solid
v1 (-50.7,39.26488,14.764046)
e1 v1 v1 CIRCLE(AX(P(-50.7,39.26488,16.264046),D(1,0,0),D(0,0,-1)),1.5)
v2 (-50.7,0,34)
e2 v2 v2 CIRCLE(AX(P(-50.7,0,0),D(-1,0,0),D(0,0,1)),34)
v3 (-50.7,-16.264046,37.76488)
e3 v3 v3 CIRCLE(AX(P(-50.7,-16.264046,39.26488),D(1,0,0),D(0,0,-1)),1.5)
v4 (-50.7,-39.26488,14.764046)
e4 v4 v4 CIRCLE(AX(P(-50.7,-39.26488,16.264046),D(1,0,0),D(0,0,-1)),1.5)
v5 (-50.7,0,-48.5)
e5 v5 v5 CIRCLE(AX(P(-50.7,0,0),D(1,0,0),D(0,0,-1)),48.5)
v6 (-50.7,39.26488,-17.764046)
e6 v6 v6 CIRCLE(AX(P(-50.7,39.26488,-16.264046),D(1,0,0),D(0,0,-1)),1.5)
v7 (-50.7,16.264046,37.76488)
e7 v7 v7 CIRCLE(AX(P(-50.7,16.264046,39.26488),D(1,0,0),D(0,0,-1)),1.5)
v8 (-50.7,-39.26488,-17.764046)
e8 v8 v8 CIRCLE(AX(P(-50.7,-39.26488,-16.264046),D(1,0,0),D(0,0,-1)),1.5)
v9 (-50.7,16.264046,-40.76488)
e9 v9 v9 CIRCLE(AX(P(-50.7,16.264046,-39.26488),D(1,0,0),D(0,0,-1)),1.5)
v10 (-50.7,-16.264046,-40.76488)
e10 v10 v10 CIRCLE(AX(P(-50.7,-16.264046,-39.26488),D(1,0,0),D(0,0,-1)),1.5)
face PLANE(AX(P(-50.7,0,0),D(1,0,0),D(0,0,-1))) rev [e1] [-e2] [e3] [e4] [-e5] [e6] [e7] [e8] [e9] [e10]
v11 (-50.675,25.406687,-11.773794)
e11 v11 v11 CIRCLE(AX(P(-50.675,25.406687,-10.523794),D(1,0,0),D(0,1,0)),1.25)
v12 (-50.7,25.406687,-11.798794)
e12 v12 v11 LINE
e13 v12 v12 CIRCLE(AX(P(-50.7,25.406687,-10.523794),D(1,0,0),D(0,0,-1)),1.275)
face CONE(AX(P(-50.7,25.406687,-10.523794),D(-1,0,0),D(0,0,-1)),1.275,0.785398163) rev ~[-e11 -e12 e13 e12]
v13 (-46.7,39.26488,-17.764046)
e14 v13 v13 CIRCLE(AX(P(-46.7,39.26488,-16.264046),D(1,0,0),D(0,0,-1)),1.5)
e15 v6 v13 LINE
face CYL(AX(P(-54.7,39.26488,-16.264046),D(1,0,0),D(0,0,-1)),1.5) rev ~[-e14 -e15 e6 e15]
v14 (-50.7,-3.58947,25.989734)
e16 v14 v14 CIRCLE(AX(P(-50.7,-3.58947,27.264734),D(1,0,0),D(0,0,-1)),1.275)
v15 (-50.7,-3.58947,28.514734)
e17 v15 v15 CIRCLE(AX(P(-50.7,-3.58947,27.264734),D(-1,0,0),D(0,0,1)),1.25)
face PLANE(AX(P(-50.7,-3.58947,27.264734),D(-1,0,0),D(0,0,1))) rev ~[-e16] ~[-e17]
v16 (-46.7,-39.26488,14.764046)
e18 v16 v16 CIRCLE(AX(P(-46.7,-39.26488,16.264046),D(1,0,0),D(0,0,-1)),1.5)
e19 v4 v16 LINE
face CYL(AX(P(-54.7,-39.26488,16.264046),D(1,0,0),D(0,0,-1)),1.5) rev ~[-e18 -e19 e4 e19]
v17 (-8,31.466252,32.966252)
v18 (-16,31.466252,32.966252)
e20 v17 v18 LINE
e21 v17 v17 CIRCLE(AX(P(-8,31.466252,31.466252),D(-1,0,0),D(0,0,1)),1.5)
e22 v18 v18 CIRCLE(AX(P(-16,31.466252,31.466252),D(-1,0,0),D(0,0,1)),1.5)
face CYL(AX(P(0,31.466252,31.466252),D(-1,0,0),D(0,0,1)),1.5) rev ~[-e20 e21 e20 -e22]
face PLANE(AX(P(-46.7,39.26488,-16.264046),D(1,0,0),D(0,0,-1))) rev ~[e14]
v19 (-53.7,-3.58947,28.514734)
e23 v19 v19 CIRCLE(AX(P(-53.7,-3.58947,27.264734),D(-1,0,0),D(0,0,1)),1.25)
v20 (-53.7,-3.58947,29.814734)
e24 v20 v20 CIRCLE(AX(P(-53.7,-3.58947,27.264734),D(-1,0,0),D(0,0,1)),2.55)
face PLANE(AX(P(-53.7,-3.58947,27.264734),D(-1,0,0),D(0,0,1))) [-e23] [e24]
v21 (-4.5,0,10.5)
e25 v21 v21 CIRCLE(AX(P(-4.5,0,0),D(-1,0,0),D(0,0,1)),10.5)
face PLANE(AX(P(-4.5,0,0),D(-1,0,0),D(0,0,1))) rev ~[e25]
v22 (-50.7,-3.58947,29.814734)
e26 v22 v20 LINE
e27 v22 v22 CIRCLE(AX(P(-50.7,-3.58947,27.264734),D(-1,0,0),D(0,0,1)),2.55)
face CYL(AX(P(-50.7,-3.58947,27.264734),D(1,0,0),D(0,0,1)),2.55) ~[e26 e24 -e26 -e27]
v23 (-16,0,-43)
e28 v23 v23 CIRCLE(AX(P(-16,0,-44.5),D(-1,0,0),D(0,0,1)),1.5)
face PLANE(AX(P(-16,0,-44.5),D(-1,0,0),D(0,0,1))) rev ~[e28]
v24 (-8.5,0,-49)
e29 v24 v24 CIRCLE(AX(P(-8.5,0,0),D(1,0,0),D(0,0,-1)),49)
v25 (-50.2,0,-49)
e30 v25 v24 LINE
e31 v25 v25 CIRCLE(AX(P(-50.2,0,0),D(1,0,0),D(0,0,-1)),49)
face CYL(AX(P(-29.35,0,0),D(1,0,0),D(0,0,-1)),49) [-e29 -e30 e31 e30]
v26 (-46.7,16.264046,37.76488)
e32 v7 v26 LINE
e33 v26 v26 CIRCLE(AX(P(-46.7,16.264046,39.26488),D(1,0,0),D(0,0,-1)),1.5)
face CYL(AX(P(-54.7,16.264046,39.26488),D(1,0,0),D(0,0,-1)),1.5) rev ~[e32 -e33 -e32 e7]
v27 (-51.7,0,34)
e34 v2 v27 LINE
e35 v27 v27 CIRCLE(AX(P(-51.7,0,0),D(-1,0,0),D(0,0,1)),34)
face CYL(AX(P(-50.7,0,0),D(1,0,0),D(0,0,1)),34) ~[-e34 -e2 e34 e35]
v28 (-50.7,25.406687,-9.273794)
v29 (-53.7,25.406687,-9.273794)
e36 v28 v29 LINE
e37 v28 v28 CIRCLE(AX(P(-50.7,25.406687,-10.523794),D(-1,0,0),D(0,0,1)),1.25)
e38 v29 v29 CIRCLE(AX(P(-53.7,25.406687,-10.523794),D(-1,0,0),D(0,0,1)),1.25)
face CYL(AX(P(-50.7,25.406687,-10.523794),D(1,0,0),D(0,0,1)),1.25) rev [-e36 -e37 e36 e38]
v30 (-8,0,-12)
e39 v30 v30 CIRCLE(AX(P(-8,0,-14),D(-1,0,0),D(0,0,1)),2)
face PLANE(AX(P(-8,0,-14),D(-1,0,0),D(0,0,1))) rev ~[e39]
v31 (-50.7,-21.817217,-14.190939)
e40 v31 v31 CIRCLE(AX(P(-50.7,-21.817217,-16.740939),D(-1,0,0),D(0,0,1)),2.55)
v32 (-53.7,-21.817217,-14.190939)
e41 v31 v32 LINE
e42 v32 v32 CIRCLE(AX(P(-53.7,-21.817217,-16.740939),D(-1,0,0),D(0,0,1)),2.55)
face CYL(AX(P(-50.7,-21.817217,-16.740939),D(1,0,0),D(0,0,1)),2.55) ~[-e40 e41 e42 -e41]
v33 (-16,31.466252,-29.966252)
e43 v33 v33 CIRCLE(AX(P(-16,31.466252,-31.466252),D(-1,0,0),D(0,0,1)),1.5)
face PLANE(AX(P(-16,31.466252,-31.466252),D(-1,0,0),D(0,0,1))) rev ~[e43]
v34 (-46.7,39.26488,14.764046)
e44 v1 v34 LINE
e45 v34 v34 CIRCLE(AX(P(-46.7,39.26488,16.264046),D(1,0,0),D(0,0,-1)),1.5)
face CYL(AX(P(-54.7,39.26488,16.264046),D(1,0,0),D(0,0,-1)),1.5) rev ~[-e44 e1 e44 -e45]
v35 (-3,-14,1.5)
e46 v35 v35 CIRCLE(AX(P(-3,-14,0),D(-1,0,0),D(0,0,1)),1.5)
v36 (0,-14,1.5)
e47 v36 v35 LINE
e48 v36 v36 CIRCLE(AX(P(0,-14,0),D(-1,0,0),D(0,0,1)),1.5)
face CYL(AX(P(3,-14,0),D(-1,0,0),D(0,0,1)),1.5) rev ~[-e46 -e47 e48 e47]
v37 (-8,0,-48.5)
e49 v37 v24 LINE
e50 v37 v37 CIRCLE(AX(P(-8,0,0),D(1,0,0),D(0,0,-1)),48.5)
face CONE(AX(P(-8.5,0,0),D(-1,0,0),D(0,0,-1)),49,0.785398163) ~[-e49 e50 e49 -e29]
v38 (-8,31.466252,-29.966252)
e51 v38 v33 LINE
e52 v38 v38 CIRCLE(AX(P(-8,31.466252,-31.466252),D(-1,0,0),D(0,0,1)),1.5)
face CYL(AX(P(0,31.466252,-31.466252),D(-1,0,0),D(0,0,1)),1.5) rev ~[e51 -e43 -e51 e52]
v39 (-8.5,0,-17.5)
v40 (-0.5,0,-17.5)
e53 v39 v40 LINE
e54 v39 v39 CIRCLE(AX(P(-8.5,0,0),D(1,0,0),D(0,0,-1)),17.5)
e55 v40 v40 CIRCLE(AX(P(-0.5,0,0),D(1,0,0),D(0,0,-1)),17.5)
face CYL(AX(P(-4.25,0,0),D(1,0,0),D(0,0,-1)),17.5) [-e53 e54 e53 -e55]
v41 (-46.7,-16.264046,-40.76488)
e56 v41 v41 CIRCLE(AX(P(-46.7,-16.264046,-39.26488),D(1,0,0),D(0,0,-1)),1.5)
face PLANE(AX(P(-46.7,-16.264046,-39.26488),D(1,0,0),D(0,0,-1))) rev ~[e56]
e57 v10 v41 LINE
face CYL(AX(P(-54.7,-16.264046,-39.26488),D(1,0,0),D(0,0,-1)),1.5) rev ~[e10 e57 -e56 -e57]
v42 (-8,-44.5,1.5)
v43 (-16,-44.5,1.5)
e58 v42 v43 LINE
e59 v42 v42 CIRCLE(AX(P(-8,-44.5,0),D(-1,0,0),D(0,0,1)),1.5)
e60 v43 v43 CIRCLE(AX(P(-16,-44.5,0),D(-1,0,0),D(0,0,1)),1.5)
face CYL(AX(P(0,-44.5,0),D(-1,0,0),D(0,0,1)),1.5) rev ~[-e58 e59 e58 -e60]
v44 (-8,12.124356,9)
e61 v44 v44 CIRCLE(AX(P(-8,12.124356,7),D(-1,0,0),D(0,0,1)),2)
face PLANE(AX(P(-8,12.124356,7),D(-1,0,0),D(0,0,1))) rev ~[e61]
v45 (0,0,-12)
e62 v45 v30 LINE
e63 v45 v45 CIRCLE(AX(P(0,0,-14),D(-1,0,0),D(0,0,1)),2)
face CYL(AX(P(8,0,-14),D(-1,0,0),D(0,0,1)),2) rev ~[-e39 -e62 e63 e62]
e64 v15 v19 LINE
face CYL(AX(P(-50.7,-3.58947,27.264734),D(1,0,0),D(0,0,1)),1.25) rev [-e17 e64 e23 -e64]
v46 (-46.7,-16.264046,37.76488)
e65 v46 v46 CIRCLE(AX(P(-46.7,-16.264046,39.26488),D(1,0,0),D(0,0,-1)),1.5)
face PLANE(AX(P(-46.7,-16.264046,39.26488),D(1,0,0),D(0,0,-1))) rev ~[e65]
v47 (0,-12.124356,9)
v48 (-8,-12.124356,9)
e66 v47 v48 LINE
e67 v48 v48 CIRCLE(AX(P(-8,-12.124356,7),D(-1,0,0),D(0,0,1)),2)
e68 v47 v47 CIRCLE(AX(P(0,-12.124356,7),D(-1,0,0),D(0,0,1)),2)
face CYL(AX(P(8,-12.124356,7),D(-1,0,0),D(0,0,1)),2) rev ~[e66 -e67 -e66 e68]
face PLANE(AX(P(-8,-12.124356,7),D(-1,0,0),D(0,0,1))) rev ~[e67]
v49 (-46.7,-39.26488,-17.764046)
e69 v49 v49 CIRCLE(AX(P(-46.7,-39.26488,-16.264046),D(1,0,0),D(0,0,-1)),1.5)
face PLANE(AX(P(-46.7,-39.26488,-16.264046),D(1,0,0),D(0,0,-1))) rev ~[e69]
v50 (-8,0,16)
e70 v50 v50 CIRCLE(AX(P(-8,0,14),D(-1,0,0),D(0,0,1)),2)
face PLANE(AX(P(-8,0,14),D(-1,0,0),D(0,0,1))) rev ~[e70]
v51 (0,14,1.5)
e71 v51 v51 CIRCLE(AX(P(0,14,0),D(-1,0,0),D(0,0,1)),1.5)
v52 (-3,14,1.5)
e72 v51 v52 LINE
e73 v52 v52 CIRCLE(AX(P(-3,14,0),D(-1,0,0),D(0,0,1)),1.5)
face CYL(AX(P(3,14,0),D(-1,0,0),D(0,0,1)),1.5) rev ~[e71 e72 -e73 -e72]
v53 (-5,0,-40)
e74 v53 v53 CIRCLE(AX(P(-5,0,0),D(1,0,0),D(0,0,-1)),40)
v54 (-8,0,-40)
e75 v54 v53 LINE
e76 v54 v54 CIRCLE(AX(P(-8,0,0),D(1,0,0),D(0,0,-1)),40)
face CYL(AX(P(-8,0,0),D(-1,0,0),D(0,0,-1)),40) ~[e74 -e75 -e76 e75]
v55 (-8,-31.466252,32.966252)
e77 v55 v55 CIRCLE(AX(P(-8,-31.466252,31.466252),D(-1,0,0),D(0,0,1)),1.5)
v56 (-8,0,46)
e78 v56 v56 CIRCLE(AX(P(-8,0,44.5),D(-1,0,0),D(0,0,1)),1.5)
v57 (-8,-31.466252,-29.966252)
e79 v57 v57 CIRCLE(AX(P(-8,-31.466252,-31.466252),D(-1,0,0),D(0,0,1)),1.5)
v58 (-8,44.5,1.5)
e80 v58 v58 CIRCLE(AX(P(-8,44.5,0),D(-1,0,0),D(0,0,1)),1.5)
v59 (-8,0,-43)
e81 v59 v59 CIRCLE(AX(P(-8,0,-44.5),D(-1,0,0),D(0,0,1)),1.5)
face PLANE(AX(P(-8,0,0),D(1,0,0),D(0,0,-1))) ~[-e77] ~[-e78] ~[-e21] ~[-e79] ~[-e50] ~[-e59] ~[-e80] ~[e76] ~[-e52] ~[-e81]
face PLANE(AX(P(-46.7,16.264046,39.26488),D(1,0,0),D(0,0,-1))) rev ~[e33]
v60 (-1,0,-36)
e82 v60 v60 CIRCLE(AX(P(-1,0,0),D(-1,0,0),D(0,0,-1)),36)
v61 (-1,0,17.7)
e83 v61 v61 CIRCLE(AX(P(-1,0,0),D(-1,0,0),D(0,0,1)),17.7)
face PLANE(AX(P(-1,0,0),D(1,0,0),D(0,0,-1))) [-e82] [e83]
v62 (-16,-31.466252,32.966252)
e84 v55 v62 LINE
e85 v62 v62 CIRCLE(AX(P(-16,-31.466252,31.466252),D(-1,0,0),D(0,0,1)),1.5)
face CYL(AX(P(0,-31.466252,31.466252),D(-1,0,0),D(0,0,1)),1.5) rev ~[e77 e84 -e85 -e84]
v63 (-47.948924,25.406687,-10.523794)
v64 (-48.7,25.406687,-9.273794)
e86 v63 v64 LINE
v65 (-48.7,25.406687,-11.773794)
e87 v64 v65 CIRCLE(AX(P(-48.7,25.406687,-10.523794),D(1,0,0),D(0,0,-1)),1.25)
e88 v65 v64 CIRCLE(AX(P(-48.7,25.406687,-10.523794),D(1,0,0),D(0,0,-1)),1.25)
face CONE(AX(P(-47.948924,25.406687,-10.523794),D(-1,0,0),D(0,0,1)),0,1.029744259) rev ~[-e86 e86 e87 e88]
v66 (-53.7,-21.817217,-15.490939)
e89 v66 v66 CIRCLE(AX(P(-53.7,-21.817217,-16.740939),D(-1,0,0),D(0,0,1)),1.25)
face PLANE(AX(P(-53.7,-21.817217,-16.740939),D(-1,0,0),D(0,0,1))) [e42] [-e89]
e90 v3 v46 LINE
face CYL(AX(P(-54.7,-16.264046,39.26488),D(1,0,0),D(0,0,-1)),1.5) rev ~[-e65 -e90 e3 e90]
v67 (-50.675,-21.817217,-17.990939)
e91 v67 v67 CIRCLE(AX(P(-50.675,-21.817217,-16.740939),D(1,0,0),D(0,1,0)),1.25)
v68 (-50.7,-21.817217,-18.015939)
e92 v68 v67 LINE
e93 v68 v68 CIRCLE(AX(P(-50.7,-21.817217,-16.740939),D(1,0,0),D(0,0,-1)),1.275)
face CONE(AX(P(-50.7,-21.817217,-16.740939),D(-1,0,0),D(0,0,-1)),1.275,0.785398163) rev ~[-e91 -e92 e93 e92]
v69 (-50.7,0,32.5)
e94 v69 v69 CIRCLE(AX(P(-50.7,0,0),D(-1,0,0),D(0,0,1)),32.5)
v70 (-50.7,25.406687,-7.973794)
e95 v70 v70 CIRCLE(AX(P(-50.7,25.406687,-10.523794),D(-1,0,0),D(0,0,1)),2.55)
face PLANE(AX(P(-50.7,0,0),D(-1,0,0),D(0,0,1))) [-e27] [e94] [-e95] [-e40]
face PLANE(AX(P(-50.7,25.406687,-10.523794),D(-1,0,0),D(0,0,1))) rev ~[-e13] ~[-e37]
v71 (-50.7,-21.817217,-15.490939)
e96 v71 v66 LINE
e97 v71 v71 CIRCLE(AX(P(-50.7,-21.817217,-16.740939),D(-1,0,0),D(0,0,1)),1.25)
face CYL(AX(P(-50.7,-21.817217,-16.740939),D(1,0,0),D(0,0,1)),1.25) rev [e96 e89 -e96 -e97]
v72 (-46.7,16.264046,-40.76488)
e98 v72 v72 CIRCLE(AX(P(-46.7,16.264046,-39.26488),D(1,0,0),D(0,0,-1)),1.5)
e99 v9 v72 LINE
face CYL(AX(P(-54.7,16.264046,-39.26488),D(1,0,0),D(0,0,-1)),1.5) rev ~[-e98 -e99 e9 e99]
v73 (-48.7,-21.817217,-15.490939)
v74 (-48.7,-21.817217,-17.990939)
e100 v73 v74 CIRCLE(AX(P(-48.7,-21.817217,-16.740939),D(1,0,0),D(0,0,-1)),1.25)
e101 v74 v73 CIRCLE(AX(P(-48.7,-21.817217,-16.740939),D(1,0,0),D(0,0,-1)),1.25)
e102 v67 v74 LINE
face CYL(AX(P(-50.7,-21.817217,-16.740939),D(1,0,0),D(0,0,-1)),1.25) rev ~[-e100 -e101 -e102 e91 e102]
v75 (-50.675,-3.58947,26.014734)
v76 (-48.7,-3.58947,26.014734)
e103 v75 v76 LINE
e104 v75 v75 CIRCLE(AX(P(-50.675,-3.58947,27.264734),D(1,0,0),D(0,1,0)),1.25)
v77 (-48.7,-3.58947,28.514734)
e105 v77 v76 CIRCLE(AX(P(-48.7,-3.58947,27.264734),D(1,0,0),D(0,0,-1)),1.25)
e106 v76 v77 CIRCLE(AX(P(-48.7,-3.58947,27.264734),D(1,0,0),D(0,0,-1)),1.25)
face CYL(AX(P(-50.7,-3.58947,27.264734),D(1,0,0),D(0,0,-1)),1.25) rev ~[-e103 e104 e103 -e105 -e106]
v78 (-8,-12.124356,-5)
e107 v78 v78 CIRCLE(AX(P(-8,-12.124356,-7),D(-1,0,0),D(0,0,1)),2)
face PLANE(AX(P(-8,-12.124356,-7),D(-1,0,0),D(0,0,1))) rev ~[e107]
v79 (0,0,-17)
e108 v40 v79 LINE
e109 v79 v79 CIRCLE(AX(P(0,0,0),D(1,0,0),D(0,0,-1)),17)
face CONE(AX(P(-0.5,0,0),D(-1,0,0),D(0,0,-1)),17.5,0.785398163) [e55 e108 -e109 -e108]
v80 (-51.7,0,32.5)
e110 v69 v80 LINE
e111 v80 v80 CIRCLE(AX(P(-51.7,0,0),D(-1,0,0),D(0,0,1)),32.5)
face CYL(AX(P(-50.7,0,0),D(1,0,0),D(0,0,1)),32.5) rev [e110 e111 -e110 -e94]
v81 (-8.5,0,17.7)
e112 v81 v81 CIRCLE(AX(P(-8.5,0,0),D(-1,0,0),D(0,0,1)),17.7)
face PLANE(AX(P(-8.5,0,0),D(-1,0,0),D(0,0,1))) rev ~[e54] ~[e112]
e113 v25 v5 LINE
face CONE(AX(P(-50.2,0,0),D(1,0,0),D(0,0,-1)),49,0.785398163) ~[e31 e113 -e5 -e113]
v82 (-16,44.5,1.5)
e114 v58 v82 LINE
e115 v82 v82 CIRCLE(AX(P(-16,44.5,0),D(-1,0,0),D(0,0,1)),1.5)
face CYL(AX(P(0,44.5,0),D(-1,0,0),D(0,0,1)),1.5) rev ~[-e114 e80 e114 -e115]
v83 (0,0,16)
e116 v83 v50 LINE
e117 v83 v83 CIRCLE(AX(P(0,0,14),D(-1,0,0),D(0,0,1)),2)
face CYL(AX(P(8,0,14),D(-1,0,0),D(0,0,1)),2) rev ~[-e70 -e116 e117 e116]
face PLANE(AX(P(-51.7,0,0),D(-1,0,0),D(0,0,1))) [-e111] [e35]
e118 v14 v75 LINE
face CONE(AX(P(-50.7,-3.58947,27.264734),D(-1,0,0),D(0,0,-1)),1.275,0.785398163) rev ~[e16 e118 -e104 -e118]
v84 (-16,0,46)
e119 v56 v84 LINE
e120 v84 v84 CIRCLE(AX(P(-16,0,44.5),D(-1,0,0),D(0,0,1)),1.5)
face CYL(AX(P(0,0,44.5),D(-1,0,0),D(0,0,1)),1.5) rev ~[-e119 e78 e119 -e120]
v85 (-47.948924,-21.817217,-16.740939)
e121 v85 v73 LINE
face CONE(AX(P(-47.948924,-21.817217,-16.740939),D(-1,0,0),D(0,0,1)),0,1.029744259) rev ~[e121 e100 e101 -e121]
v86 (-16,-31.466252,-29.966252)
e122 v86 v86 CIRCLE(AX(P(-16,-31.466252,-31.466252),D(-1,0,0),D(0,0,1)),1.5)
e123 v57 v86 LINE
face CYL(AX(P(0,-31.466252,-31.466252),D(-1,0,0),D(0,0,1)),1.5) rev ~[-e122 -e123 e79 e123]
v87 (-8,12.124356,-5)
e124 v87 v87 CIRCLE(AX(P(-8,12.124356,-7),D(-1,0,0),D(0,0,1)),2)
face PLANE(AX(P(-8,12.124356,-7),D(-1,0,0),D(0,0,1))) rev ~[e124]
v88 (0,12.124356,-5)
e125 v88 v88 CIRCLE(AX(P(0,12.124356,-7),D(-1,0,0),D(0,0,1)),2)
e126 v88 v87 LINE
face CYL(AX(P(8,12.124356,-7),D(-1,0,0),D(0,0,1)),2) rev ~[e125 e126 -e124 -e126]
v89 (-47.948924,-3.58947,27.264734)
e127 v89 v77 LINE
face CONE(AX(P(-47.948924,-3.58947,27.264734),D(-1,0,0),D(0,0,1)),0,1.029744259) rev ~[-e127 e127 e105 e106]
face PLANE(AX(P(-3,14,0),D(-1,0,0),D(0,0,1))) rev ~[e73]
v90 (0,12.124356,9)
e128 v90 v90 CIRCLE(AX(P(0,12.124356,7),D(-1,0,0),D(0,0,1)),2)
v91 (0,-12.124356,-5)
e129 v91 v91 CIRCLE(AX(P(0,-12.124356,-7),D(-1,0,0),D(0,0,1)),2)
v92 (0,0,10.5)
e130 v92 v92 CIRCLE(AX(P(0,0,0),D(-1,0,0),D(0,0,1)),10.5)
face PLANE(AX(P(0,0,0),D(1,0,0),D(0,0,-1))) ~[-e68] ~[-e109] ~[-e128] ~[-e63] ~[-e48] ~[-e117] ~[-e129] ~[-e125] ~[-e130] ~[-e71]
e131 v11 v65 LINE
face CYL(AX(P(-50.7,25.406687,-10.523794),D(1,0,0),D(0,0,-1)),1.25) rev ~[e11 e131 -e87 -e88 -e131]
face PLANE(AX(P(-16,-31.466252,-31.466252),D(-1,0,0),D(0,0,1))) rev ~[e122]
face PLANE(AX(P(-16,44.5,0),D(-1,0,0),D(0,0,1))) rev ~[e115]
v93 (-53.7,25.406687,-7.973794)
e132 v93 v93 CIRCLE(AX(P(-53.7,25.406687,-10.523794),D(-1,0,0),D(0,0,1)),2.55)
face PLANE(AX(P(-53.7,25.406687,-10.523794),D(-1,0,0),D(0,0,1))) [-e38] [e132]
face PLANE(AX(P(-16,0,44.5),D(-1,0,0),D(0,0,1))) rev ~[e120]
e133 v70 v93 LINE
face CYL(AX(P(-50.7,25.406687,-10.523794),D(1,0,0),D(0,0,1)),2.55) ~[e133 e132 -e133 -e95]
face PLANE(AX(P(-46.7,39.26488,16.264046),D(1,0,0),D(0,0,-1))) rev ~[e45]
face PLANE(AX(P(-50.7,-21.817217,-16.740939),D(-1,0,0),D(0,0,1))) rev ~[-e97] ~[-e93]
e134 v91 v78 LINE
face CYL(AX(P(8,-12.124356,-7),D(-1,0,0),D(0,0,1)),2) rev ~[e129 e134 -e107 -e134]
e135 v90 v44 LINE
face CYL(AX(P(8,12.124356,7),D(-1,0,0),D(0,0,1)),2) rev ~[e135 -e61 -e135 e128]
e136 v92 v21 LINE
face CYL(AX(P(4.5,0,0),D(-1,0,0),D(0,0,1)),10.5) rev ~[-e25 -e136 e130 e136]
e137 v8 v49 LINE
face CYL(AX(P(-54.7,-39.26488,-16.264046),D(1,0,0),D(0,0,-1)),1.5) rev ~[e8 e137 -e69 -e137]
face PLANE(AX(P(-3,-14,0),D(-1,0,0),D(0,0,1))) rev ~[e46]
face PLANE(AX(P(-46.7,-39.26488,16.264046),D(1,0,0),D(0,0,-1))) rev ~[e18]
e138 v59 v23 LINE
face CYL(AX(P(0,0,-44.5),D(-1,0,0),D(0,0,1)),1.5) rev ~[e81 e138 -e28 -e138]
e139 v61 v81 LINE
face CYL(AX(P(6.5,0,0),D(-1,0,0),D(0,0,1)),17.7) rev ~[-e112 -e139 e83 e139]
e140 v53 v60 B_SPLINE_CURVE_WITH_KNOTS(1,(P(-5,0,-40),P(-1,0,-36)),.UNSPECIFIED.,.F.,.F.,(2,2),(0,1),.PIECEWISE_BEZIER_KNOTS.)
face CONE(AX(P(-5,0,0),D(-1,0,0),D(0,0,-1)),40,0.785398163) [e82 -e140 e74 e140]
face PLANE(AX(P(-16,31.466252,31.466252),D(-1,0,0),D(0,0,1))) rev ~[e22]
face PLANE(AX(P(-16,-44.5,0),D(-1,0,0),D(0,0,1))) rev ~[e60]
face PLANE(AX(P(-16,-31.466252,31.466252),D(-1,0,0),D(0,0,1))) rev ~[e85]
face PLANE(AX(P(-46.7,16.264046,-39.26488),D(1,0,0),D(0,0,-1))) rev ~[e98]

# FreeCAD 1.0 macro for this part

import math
import FreeCAD as App
import Part
import Sketcher
from FreeCAD import Vector
Q = App.Units.Quantity


def edges_at(feature, points):
    """Names of the edges that pass closest to the given points."""
    edges = feature.Shape.Edges
    near = lambda p: min(range(len(edges)), key=lambda i: edges[i].distToShape(Part.Vertex(*p))[0])
    return sorted({f"Edge{near(p) + 1}" for p in points})


def add_polygon(sketch, points):
    """Adds a closed chain of lines whose ends are joined by coincident constraints."""
    first, n = sketch.GeometryCount, len(points)
    for a, b in zip(points, points[1:] + points[:1]):
        sketch.addGeometry(Part.LineSegment(App.Vector(*a, 0), App.Vector(*b, 0)), False)
    for i in range(n):
        sketch.addConstraint(Sketcher.Constraint("Coincident", first + i, 2, first + (i + 1) % n, 1))

doc = App.newDocument("Part")
body = doc.addObject("PartDesign::Body", "Body")

# Sketch on XY plane
sketch1 = body.newObject("Sketcher::SketchObject", "Sketch")
sketch1.AttachmentSupport = (doc.getObject("XY_Plane"), [""])
sketch1.MapMode = "FlatFace"
add_polygon(sketch1, [(-51, 49), (-51, 0), (-8, 0), (-8, 49)])  # lines 0-3
sketch1.addConstraint(Sketcher.Constraint("Vertical", 0))
sketch1.addConstraint(Sketcher.Constraint("Horizontal", 1))
sketch1.addConstraint(Sketcher.Constraint("Vertical", 2))
sketch1.addConstraint(Sketcher.Constraint("Horizontal", 3))
sketch1.addConstraint(Sketcher.Constraint("PointOnObject", 0, 2, -1))
sketch1.addConstraint(Sketcher.Constraint("DistanceY", 0, 2, 0, 1, 49.0))
sketch1.addConstraint(Sketcher.Constraint("DistanceX", 1, 1, 1, 2, 42.7))
sketch1.addConstraint(Sketcher.Constraint("DistanceX", 1, 2, -1, 1, 8.0))
revolution = body.newObject("PartDesign::Revolution", "Revolution")
revolution.Profile = sketch1
revolution.ReferenceAxis = (sketch1, ["H_Axis"])
revolution.Angle = 360

# Sketch on YZ plane
sketch2 = body.newObject("Sketcher::SketchObject", "Sketch001")
sketch2.AttachmentSupport = (doc.getObject("YZ_Plane"), [""])
sketch2.MapMode = "FlatFace"
sketch2.AttachmentOffset = App.Placement(Vector(0, 0, -50.7), App.Rotation())
sketch2.addGeometry(Part.Circle(Vector(0, 0, 0), Vector(0, 0, 1), 36), False)
sketch2.addConstraint(Sketcher.Constraint("Coincident", 0, 3, -1, 1))
sketch2.addConstraint(Sketcher.Constraint("Diameter", 0, 71.0))
pad1 = body.newObject("PartDesign::Pad", "Pad")
pad1.Profile = sketch2
pad1.Length = 11.2
pad1.Reversed = True

# Sketch on YZ plane
sketch3 = body.newObject("Sketcher::SketchObject", "Sketch002")
sketch3.AttachmentSupport = (doc.getObject("YZ_Plane"), [""])
sketch3.MapMode = "FlatFace"
sketch3.AttachmentOffset = App.Placement(Vector(0, 0, -53.9), App.Rotation())
sketch3.addGeometry(Part.LineSegment(Vector(35, 5, 0), Vector(14, 33, 0)), False)
sketch3.addGeometry(Part.ArcOfCircle(Part.Circle(Vector(0, 0, 0), Vector(0, 0, 1), 36), math.radians(9), math.radians(66)), False)
sketch3.addConstraint(Sketcher.Constraint("Coincident", 0, 1, 1, 1))
sketch3.addConstraint(Sketcher.Constraint("Coincident", 1, 2, 0, 2))
sketch3.addConstraint(Sketcher.Constraint("Coincident", 1, 3, -1, 1))
sketch3.addConstraint(Sketcher.Constraint("Radius", 1, 35.5))
sketch3.addConstraint(Sketcher.Constraint("Angle", 0, Q("127.5 deg")))
sketch3.addConstraint(Sketcher.Constraint("DistanceX", -1, 1, 1, 2, 14.16098))
pocket1 = body.newObject("PartDesign::Pocket", "Pocket")
pocket1.Profile = sketch3
pocket1.Length = 8

# Sketch on YZ plane
sketch4 = body.newObject("Sketcher::SketchObject", "Sketch003")
sketch4.AttachmentSupport = (doc.getObject("YZ_Plane"), [""])
sketch4.MapMode = "FlatFace"
sketch4.AttachmentOffset = App.Placement(Vector(0, 0, -8), App.Rotation())
sketch4.addGeometry(Part.Circle(Vector(0, 0, 0), Vector(0, 0, 1), 40), False)
sketch4.addConstraint(Sketcher.Constraint("Coincident", 0, 3, -1, 1))
sketch4.addConstraint(Sketcher.Constraint("Diameter", 0, 80.0))
pad2 = body.newObject("PartDesign::Pad", "Pad001")
pad2.Profile = sketch4
pad2.Length = 3

# Sketch on YZ plane
sketch5 = body.newObject("Sketcher::SketchObject", "Sketch004")
sketch5.AttachmentSupport = (doc.getObject("YZ_Plane"), [""])
sketch5.MapMode = "FlatFace"
sketch5.AttachmentOffset = App.Placement(Vector(0, 0, -5), App.Rotation())
sketch5.addGeometry(Part.Circle(Vector(0, 0, 0), Vector(0, 0, 1), 40), False)
sketch5.addConstraint(Sketcher.Constraint("Coincident", 0, 3, -1, 1))
sketch5.addConstraint(Sketcher.Constraint("Diameter", 0, 80.0))
pad3 = body.newObject("PartDesign::Pad", "Pad002")
pad3.Profile = sketch5
pad3.Length = 4
pad3.TaperAngle = -45

# Sketch on YZ plane
sketch6 = body.newObject("Sketcher::SketchObject", "Sketch005")
sketch6.AttachmentSupport = (doc.getObject("YZ_Plane"), [""])
sketch6.MapMode = "FlatFace"
sketch6.AttachmentOffset = App.Placement(Vector(0, 0, -1), App.Rotation())
sketch6.addGeometry(Part.Circle(Vector(0, 0, 0), Vector(0, 0, 1), 18), False)
sketch6.addConstraint(Sketcher.Constraint("Coincident", 0, 3, -1, 1))
sketch6.addConstraint(Sketcher.Constraint("Diameter", 0, 35.4))
doc.recompute()
hole = body.newObject("PartDesign::Hole", "Hole")
hole.Profile = sketch6
hole.ThreadType = "None"
hole.Diameter = 35.4
hole.DepthType = "Dimension"
hole.Depth = 7.5
hole.DrillPoint = "Flat"

# Sketch on XY plane
sketch7 = body.newObject("Sketcher::SketchObject", "Sketch006")
sketch7.AttachmentSupport = (doc.getObject("XY_Plane"), [""])
sketch7.MapMode = "FlatFace"
add_polygon(sketch7, [(-8, 18), (-8, 0), (0, 0), (0, 18)])  # lines 0-3
sketch7.addConstraint(Sketcher.Constraint("Vertical", 0))
sketch7.addConstraint(Sketcher.Constraint("Horizontal", 1))
sketch7.addConstraint(Sketcher.Constraint("Vertical", 2))
sketch7.addConstraint(Sketcher.Constraint("Horizontal", 3))
sketch7.addConstraint(Sketcher.Constraint("Coincident", 1, 2, -1, 1))
sketch7.addConstraint(Sketcher.Constraint("DistanceX", 1, 1, 1, 2, 8.5))
sketch7.addConstraint(Sketcher.Constraint("DistanceY", 0, 2, 0, 1, 17.5))
revolution2 = body.newObject("PartDesign::Revolution", "Revolution001")
revolution2.Profile = sketch7
revolution2.ReferenceAxis = (sketch7, ["H_Axis"])
revolution2.Angle = 360

# Sketch on YZ plane
sketch8 = body.newObject("Sketcher::SketchObject", "Sketch007")
sketch8.AttachmentSupport = (doc.getObject("YZ_Plane"), [""])
sketch8.MapMode = "FlatFace"
sketch8.AttachmentOffset = App.Placement(Vector(0, 0, -50.7), App.Rotation())
sketch8.addGeometry(Part.Circle(Vector(16.3, 39.3, 0), Vector(0, 0, 1), 1.5), False)
sketch8.addGeometry(Part.Circle(Vector(-16.3, 39.3, 0), Vector(0, 0, 1), 1.5), False)
sketch8.addGeometry(Part.Circle(Vector(-39.3, 16.3, 0), Vector(0, 0, 1), 1.5), False)
sketch8.addGeometry(Part.Circle(Vector(-39.3, -16.3, 0), Vector(0, 0, 1), 1.5), False)
sketch8.addGeometry(Part.Circle(Vector(-16.3, -39.3, 0), Vector(0, 0, 1), 1.5), False)
sketch8.addGeometry(Part.Circle(Vector(16.3, -39.3, 0), Vector(0, 0, 1), 1.5), False)
sketch8.addGeometry(Part.Circle(Vector(39.3, -16.3, 0), Vector(0, 0, 1), 1.5), False)
sketch8.addGeometry(Part.Circle(Vector(39.3, 16.3, 0), Vector(0, 0, 1), 1.5), False)
sketch8.addConstraint(Sketcher.Constraint("Equal", 0, 1))
sketch8.addConstraint(Sketcher.Constraint("Equal", 1, 2))
sketch8.addConstraint(Sketcher.Constraint("Equal", 2, 3))
sketch8.addConstraint(Sketcher.Constraint("Equal", 3, 4))
sketch8.addConstraint(Sketcher.Constraint("Equal", 4, 5))
sketch8.addConstraint(Sketcher.Constraint("Equal", 5, 6))
sketch8.addConstraint(Sketcher.Constraint("Equal", 6, 7))
sketch8.addConstraint(Sketcher.Constraint("Symmetric", 0, 3, 4, 3, -1, 1))
sketch8.addConstraint(Sketcher.Constraint("Symmetric", 1, 3, 5, 3, -1, 1))
sketch8.addConstraint(Sketcher.Constraint("Symmetric", 2, 3, 6, 3, -1, 1))
sketch8.addConstraint(Sketcher.Constraint("Symmetric", 3, 3, 7, 3, -1, 1))
sketch8.addConstraint(Sketcher.Constraint("Symmetric", 0, 3, 1, 3, -2))
sketch8.addConstraint(Sketcher.Constraint("Symmetric", 3, 3, 6, 3, -2))
sketch8.addConstraint(Sketcher.Constraint("Diameter", 0, 3.0))
sketch8.addConstraint(Sketcher.Constraint("DistanceY", -1, 1, 0, 3, 39.26488))
sketch8.addConstraint(Sketcher.Constraint("DistanceX", 2, 3, -1, 1, 39.26488))
sketch8.addConstraint(Sketcher.Constraint("DistanceX", 1, 3, 0, 3, 32.528092))
sketch8.addConstraint(Sketcher.Constraint("DistanceY", 3, 3, 2, 3, 32.528092))
doc.recompute()
hole2 = body.newObject("PartDesign::Hole", "Hole001")
hole2.Profile = sketch8
hole2.ThreadType = "None"
hole2.Diameter = 3
hole2.DepthType = "Dimension"
hole2.Depth = 4
hole2.DrillPoint = "Flat"
hole2.Reversed = True

# Sketch on YZ plane
sketch9 = body.newObject("Sketcher::SketchObject", "Sketch008")
sketch9.AttachmentSupport = (doc.getObject("YZ_Plane"), [""])
sketch9.MapMode = "FlatFace"
sketch9.AttachmentOffset = App.Placement(Vector(0, 0, -8), App.Rotation())
sketch9.addGeometry(Part.Circle(Vector(31.5, -31.5, 0), Vector(0, 0, 1), 1.5), False)
sketch9.addGeometry(Part.Circle(Vector(0, -44.5, 0), Vector(0, 0, 1), 1.5), False)
sketch9.addGeometry(Part.Circle(Vector(-31.5, -31.5, 0), Vector(0, 0, 1), 1.5), False)
sketch9.addGeometry(Part.Circle(Vector(-44.5, 0, 0), Vector(0, 0, 1), 1.5), False)
sketch9.addGeometry(Part.Circle(Vector(-31.5, 31.5, 0), Vector(0, 0, 1), 1.5), False)
sketch9.addGeometry(Part.Circle(Vector(0, 44.5, 0), Vector(0, 0, 1), 1.5), False)
sketch9.addGeometry(Part.Circle(Vector(31.5, 31.5, 0), Vector(0, 0, 1), 1.5), False)
sketch9.addGeometry(Part.Circle(Vector(44.5, 0, 0), Vector(0, 0, 1), 1.5), False)
sketch9.addConstraint(Sketcher.Constraint("Equal", 0, 1))
sketch9.addConstraint(Sketcher.Constraint("Equal", 1, 2))
sketch9.addConstraint(Sketcher.Constraint("Equal", 2, 3))
sketch9.addConstraint(Sketcher.Constraint("Equal", 3, 4))
sketch9.addConstraint(Sketcher.Constraint("Equal", 4, 5))
sketch9.addConstraint(Sketcher.Constraint("Equal", 5, 6))
sketch9.addConstraint(Sketcher.Constraint("Equal", 6, 7))
sketch9.addConstraint(Sketcher.Constraint("Symmetric", 0, 3, 4, 3, -1, 1))
sketch9.addConstraint(Sketcher.Constraint("Symmetric", 1, 3, 5, 3, -1, 1))
sketch9.addConstraint(Sketcher.Constraint("Symmetric", 2, 3, 6, 3, -1, 1))
sketch9.addConstraint(Sketcher.Constraint("Symmetric", 3, 3, 7, 3, -1, 1))
sketch9.addConstraint(Sketcher.Constraint("Symmetric", 0, 3, 2, 3, -2))
sketch9.addConstraint(Sketcher.Constraint("PointOnObject", 1, 3, -2))
sketch9.addConstraint(Sketcher.Constraint("PointOnObject", 3, 3, -1))
sketch9.addConstraint(Sketcher.Constraint("Diameter", 0, 3.0))
sketch9.addConstraint(Sketcher.Constraint("DistanceY", 1, 3, 5, 3, 89.0))
sketch9.addConstraint(Sketcher.Constraint("DistanceX", 3, 3, -1, 1, 44.5))
sketch9.addConstraint(Sketcher.Constraint("DistanceX", -1, 1, 0, 3, 31.466252))
sketch9.addConstraint(Sketcher.Constraint("DistanceY", 0, 3, -1, 1, 31.466252))
doc.recompute()
hole3 = body.newObject("PartDesign::Hole", "Hole002")
hole3.Profile = sketch9
hole3.ThreadType = "None"
hole3.Diameter = 3
hole3.DepthType = "Dimension"
hole3.Depth = 8
hole3.DrillPoint = "Flat"

# Sketch on YZ plane
sketch10 = body.newObject("Sketcher::SketchObject", "Sketch009")
sketch10.AttachmentSupport = (doc.getObject("YZ_Plane"), [""])
sketch10.MapMode = "FlatFace"
sketch10.addGeometry(Part.Circle(Vector(0, 0, 0), Vector(0, 0, 1), 10), False)
sketch10.addConstraint(Sketcher.Constraint("Coincident", 0, 3, -1, 1))
sketch10.addConstraint(Sketcher.Constraint("Diameter", 0, 21.0))
doc.recompute()
hole4 = body.newObject("PartDesign::Hole", "Hole003")
hole4.Profile = sketch10
hole4.ThreadType = "None"
hole4.Diameter = 21
hole4.DepthType = "Dimension"
hole4.Depth = 4.5
hole4.DrillPoint = "Flat"

# Sketch on YZ plane
sketch11 = body.newObject("Sketcher::SketchObject", "Sketch010")
sketch11.AttachmentSupport = (doc.getObject("YZ_Plane"), [""])
sketch11.MapMode = "FlatFace"
sketch11.addGeometry(Part.Circle(Vector(0, 14, 0), Vector(0, 0, 1), 2), False)
sketch11.addGeometry(Part.Circle(Vector(12.1, 7, 0), Vector(0, 0, 1), 2), False)
sketch11.addGeometry(Part.Circle(Vector(12.1, -7, 0), Vector(0, 0, 1), 2), False)
sketch11.addGeometry(Part.Circle(Vector(0, -14, 0), Vector(0, 0, 1), 2), False)
sketch11.addGeometry(Part.Circle(Vector(-12.1, -7, 0), Vector(0, 0, 1), 2), False)
sketch11.addGeometry(Part.Circle(Vector(-12.1, 7, 0), Vector(0, 0, 1), 2), False)
sketch11.addConstraint(Sketcher.Constraint("Equal", 0, 1))
sketch11.addConstraint(Sketcher.Constraint("Equal", 1, 2))
sketch11.addConstraint(Sketcher.Constraint("Equal", 2, 3))
sketch11.addConstraint(Sketcher.Constraint("Equal", 3, 4))
sketch11.addConstraint(Sketcher.Constraint("Equal", 4, 5))
sketch11.addConstraint(Sketcher.Constraint("Symmetric", 0, 3, 3, 3, -1, 1))
sketch11.addConstraint(Sketcher.Constraint("Symmetric", 1, 3, 4, 3, -1, 1))
sketch11.addConstraint(Sketcher.Constraint("Symmetric", 2, 3, 5, 3, -1, 1))
sketch11.addConstraint(Sketcher.Constraint("Symmetric", 2, 3, 4, 3, -2))
sketch11.addConstraint(Sketcher.Constraint("PointOnObject", 0, 3, -2))
sketch11.addConstraint(Sketcher.Constraint("Diameter", 0, 4.0))
sketch11.addConstraint(Sketcher.Constraint("DistanceY", -1, 1, 0, 3, 14.0))
sketch11.addConstraint(Sketcher.Constraint("DistanceY", -1, 1, 1, 3, 7.0))
sketch11.addConstraint(Sketcher.Constraint("DistanceX", 4, 3, 2, 3, 24.248711))
doc.recompute()
hole5 = body.newObject("PartDesign::Hole", "Hole004")
hole5.Profile = sketch11
hole5.ThreadType = "None"
hole5.Diameter = 4
hole5.DepthType = "Dimension"
hole5.Depth = 8
hole5.DrillPoint = "Flat"

# Sketch on YZ plane
sketch12 = body.newObject("Sketcher::SketchObject", "Sketch011")
sketch12.AttachmentSupport = (doc.getObject("YZ_Plane"), [""])
sketch12.MapMode = "FlatFace"
sketch12.addGeometry(Part.Circle(Vector(-14, 0, 0), Vector(0, 0, 1), 1.5), False)
sketch12.addGeometry(Part.Circle(Vector(14, 0, 0), Vector(0, 0, 1), 1.5), False)
sketch12.addConstraint(Sketcher.Constraint("Equal", 0, 1))
sketch12.addConstraint(Sketcher.Constraint("Symmetric", 0, 3, 1, 3, -1, 1))
sketch12.addConstraint(Sketcher.Constraint("PointOnObject", 0, 3, -1))
sketch12.addConstraint(Sketcher.Constraint("Diameter", 0, 3.0))
sketch12.addConstraint(Sketcher.Constraint("DistanceX", 0, 3, -1, 1, 14.0))
doc.recompute()
hole6 = body.newObject("PartDesign::Hole", "Hole005")
hole6.Profile = sketch12
hole6.ThreadType = "None"
hole6.Diameter = 3
hole6.DepthType = "Dimension"
hole6.Depth = 3
hole6.DrillPoint = "Flat"
doc.recompute()

chamfer = body.newObject("PartDesign::Chamfer", "Chamfer")
chamfer.Base = (hole6, edges_at(hole6, [(0, 0, 17.5), (-8, 0, 49), (-50.7, 0, 49)]))
chamfer.Size = 0.5

# Sketch on YZ plane
sketch13 = body.newObject("Sketcher::SketchObject", "Sketch012")
sketch13.AttachmentSupport = (doc.getObject("YZ_Plane"), [""])
sketch13.MapMode = "FlatFace"
sketch13.AttachmentOffset = App.Placement(Vector(0, 0, -61.9), App.Rotation())
sketch13.addGeometry(Part.Circle(Vector(0, 0, 0), Vector(0, 0, 1), 38), False)
sketch13.addConstraint(Sketcher.Constraint("Coincident", 0, 3, -1, 1))
sketch13.addConstraint(Sketcher.Constraint("Diameter", 0, 76.880209))
pocket2 = body.newObject("PartDesign::Pocket", "Pocket001")
pocket2.Profile = sketch13
pocket2.Length = 10.2
pocket2.Reversed = True

# Sketch on YZ plane
sketch14 = body.newObject("Sketcher::SketchObject", "Sketch013")
sketch14.AttachmentSupport = (doc.getObject("YZ_Plane"), [""])
sketch14.MapMode = "FlatFace"
sketch14.AttachmentOffset = App.Placement(Vector(0, 0, -50.7), App.Rotation())
sketch14.addGeometry(Part.Circle(Vector(0, 0, 0), Vector(0, 0, 1), 38), False)
sketch14.addGeometry(Part.Circle(Vector(0, 0, 0), Vector(0, 0, 1), 34), False)
sketch14.addGeometry(Part.Circle(Vector(0, 0, 0), Vector(0, 0, 1), 32), False)
sketch14.addConstraint(Sketcher.Constraint("Coincident", 0, 3, -1, 1))
sketch14.addConstraint(Sketcher.Constraint("Coincident", 1, 3, -1, 1))
sketch14.addConstraint(Sketcher.Constraint("Coincident", 2, 3, -1, 1))
sketch14.addConstraint(Sketcher.Constraint("Diameter", 1, 68.0))
sketch14.addConstraint(Sketcher.Constraint("Diameter", 2, 65.0))
sketch14.addConstraint(Sketcher.Constraint("Diameter", 0, 76.73608))
pocket3 = body.newObject("PartDesign::Pocket", "Pocket002")
pocket3.Profile = sketch14
pocket3.Length = 1

# Sketch on YZ plane
sketch15 = body.newObject("Sketcher::SketchObject", "Sketch014")
sketch15.AttachmentSupport = (doc.getObject("YZ_Plane"), [""])
sketch15.MapMode = "FlatFace"
sketch15.AttachmentOffset = App.Placement(Vector(0, 0, -50.7), App.Rotation())
sketch15.addGeometry(Part.Circle(Vector(-21.8, -16.7, 0), Vector(0, 0, 1), 1.2), False)
sketch15.addGeometry(Part.Circle(Vector(25.4, -10.5, 0), Vector(0, 0, 1), 1.2), False)
sketch15.addGeometry(Part.Circle(Vector(-3.6, 27.3, 0), Vector(0, 0, 1), 1.2), False)
sketch15.addConstraint(Sketcher.Constraint("Equal", 0, 1))
sketch15.addConstraint(Sketcher.Constraint("Equal", 1, 2))
sketch15.addConstraint(Sketcher.Constraint("Diameter", 0, 2.5))
sketch15.addConstraint(Sketcher.Constraint("DistanceY", 0, 3, -1, 1, 16.740939))
sketch15.addConstraint(Sketcher.Constraint("DistanceX", 2, 3, -1, 1, 3.58947))
sketch15.addConstraint(Sketcher.Constraint("DistanceY", 1, 3, 2, 3, 37.788528))
sketch15.addConstraint(Sketcher.Constraint("DistanceX", 0, 3, -1, 1, 21.817217))
sketch15.addConstraint(Sketcher.Constraint("DistanceX", -1, 1, 1, 3, 25.406687))
sketch15.addConstraint(Sketcher.Constraint("DistanceY", 1, 3, -1, 1, 10.523794))
doc.recompute()
hole7 = body.newObject("PartDesign::Hole", "Hole006")
hole7.Profile = sketch15
hole7.ThreadType = "None"
hole7.Diameter = 2.5
hole7.DepthType = "Dimension"
hole7.Depth = 2
hole7.DrillPoint = "Angled"
hole7.DrillPointAngle = 118
hole7.HoleCutType = "Countersink"
hole7.HoleCutDiameter = 2.55
hole7.HoleCutCountersinkAngle = 90
hole7.Reversed = True

# Sketch on YZ plane
sketch16 = body.newObject("Sketcher::SketchObject", "Sketch015")
sketch16.AttachmentSupport = (doc.getObject("YZ_Plane"), [""])
sketch16.MapMode = "FlatFace"
sketch16.AttachmentOffset = App.Placement(Vector(0, 0, -50.7), App.Rotation())
sketch16.addGeometry(Part.Circle(Vector(25.4, -10.5, 0), Vector(0, 0, 1), 2.5), False)
sketch16.addGeometry(Part.Circle(Vector(25.4, -10.5, 0), Vector(0, 0, 1), 1.2), False)
sketch16.addGeometry(Part.Circle(Vector(-21.8, -16.7, 0), Vector(0, 0, 1), 2.5), False)
sketch16.addGeometry(Part.Circle(Vector(-21.8, -16.7, 0), Vector(0, 0, 1), 1.2), False)
sketch16.addGeometry(Part.Circle(Vector(-3.6, 27.3, 0), Vector(0, 0, 1), 2.5), False)
sketch16.addGeometry(Part.Circle(Vector(-3.6, 27.3, 0), Vector(0, 0, 1), 1.2), False)
sketch16.addConstraint(Sketcher.Constraint("Coincident", 1, 3, 0, 3))
sketch16.addConstraint(Sketcher.Constraint("Coincident", 3, 3, 2, 3))
sketch16.addConstraint(Sketcher.Constraint("Coincident", 5, 3, 4, 3))
sketch16.addConstraint(Sketcher.Constraint("Equal", 0, 2))
sketch16.addConstraint(Sketcher.Constraint("Equal", 1, 3))
sketch16.addConstraint(Sketcher.Constraint("Equal", 2, 4))
sketch16.addConstraint(Sketcher.Constraint("Equal", 3, 5))
sketch16.addConstraint(Sketcher.Constraint("Diameter", 0, 5.1))
sketch16.addConstraint(Sketcher.Constraint("Diameter", 1, 2.5))
sketch16.addConstraint(Sketcher.Constraint("DistanceY", 2, 3, -1, 1, 16.740939))
sketch16.addConstraint(Sketcher.Constraint("DistanceX", 4, 3, -1, 1, 3.58947))
sketch16.addConstraint(Sketcher.Constraint("DistanceY", 0, 3, 4, 3, 37.788528))
sketch16.addConstraint(Sketcher.Constraint("DistanceX", -1, 1, 0, 3, 25.406687))
sketch16.addConstraint(Sketcher.Constraint("DistanceY", 0, 3, -1, 1, 10.523794))
sketch16.addConstraint(Sketcher.Constraint("DistanceX", 2, 3, -1, 1, 21.817217))
pad4 = body.newObject("PartDesign::Pad", "Pad003")
pad4.Profile = sketch16
pad4.Length = 3
pad4.Reversed = True

doc.recompute()
